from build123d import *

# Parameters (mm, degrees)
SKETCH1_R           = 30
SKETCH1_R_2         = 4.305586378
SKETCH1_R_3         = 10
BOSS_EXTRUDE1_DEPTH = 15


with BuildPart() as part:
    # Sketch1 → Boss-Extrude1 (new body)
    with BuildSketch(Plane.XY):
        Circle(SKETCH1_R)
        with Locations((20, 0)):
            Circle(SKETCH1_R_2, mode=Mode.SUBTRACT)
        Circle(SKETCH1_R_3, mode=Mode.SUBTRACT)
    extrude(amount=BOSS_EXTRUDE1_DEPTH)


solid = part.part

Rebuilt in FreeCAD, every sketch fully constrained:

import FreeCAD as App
import Part
import Sketcher

doc = App.newDocument("Part")
body = doc.addObject("PartDesign::Body", "Body")

# Sketch on XY plane
sketch1 = body.newObject("Sketcher::SketchObject", "Sketch")
sketch1.AttachmentSupport = (doc.getObject("XY_Plane"), [""])
sketch1.MapMode = "FlatFace"
sketch1.addGeometry(Part.Circle(App.Vector(0, 0, 0), App.Vector(0, 0, 1), 30), False)
sketch1.addGeometry(Part.Circle(App.Vector(0, 0, 0), App.Vector(0, 0, 1), 10), False)
sketch1.addGeometry(Part.Circle(App.Vector(20, 0, 0), App.Vector(0, 0, 1), 4.305586), False)
sketch1.addConstraint(Sketcher.Constraint("Coincident", 0, 3, -1, 1))
sketch1.addConstraint(Sketcher.Constraint("Coincident", 1, 3, -1, 1))
sketch1.addConstraint(Sketcher.Constraint("PointOnObject", 2, 3, -1))
sketch1.addConstraint(Sketcher.Constraint("Diameter", 0, 60.0))
sketch1.addConstraint(Sketcher.Constraint("Diameter", 1, 20.0))
sketch1.addConstraint(Sketcher.Constraint("DistanceX", -1, 1, 2, 3, 20.0))
sketch1.addConstraint(Sketcher.Constraint("Diameter", 2, 8.611173))
pad1 = body.newObject("PartDesign::Pad", "Pad")
pad1.Profile = sketch1
pad1.Length = 15

doc.recompute()
